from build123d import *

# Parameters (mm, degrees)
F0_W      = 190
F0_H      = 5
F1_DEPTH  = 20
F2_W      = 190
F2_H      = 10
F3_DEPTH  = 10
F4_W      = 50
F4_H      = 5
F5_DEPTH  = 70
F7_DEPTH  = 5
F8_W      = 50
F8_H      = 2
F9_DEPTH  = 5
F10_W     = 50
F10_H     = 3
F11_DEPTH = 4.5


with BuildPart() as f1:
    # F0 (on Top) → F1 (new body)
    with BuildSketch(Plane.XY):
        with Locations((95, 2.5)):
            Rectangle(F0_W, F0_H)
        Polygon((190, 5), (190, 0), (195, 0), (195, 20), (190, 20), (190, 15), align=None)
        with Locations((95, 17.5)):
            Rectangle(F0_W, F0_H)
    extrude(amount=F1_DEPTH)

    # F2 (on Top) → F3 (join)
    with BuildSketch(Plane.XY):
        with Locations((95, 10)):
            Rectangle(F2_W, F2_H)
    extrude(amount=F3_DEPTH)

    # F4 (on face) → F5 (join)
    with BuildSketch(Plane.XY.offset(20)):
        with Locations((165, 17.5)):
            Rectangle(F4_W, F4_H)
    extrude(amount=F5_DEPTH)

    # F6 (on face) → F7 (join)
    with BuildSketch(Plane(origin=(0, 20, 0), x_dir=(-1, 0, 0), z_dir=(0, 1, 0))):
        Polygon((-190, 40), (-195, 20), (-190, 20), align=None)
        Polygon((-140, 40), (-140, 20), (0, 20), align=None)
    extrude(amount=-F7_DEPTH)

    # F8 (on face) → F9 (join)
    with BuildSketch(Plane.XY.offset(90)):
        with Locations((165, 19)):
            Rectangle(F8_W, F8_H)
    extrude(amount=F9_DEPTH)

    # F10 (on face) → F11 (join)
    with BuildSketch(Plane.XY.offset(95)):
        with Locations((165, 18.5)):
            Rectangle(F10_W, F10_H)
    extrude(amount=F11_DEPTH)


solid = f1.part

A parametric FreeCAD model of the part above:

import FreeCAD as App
import Part
import Sketcher
from FreeCAD import Vector
Q = App.Units.Quantity


def add_polygon(sketch, points):
    """Adds a closed chain of lines whose ends are joined by coincident constraints."""
    first, n = sketch.GeometryCount, len(points)
    for a, b in zip(points, points[1:] + points[:1]):
        sketch.addGeometry(Part.LineSegment(App.Vector(*a, 0), App.Vector(*b, 0)), False)
    for i in range(n):
        sketch.addConstraint(Sketcher.Constraint("Coincident", first + i, 2, first + (i + 1) % n, 1))

doc = App.newDocument("Part")
body = doc.addObject("PartDesign::Body", "Body")

sketch1 = body.newObject("Sketcher::SketchObject", "Sketch")
sketch1.AttachmentSupport = (doc.getObject("XY_Plane"), [""])
sketch1.MapMode = "FlatFace"
add_polygon(sketch1, [(0, 5), (0, 0), (195, 0), (195, 20), (0, 20), (0, 15), (190, 15), (190, 5)])
sketch1.addConstraint([
    Sketcher.Constraint("Vertical", 0),
    Sketcher.Constraint("Horizontal", 1),
    Sketcher.Constraint("Vertical", 2),
    Sketcher.Constraint("Horizontal", 3),
    Sketcher.Constraint("Vertical", 4),
    Sketcher.Constraint("Horizontal", 5),
    Sketcher.Constraint("Vertical", 6),
    Sketcher.Constraint("Horizontal", 7),
    Sketcher.Constraint("Coincident", 0, 2, -1, 1),
    Sketcher.Constraint("PointOnObject", 3, 2, -2),
    Sketcher.Constraint("Equal", 0, 4),
    Sketcher.Constraint("DistanceX", 1, 1, 1, 2, Q("195 mm")),
    Sketcher.Constraint("DistanceX", 5, 1, 5, 2, Q("190 mm")),
    Sketcher.Constraint("DistanceY", 0, 2, 0, 1, Q("5 mm")),
    Sketcher.Constraint("DistanceY", 2, 1, 2, 2, Q("20 mm")),
])
pad1 = body.newObject("PartDesign::Pad", "Pad")
pad1.Profile = sketch1
pad1.Length = 20

sketch2 = body.newObject("Sketcher::SketchObject", "Sketch001")
sketch2.AttachmentSupport = (doc.getObject("XY_Plane"), [""])
sketch2.MapMode = "FlatFace"
add_polygon(sketch2, [(0, 15), (0, 5), (190, 5), (190, 15)])
sketch2.addConstraint([
    Sketcher.Constraint("Vertical", 0),
    Sketcher.Constraint("Horizontal", 1),
    Sketcher.Constraint("Vertical", 2),
    Sketcher.Constraint("Horizontal", 3),
    Sketcher.Constraint("PointOnObject", 0, 2, -2),
    Sketcher.Constraint("DistanceX", 1, 1, 1, 2, Q("190 mm")),
    Sketcher.Constraint("DistanceY", 0, 2, 0, 1, Q("10 mm")),
    Sketcher.Constraint("DistanceY", -1, 1, 0, 2, Q("5 mm")),
])
pad2 = body.newObject("PartDesign::Pad", "Pad001")
pad2.Profile = sketch2
pad2.Length = 10

sketch3 = body.newObject("Sketcher::SketchObject", "Sketch002")
sketch3.AttachmentSupport = (doc.getObject("XY_Plane"), [""])
sketch3.MapMode = "FlatFace"
sketch3.AttachmentOffset = App.Placement(Vector(0, 0, 20), App.Rotation())
add_polygon(sketch3, [(140, 20), (140, 15), (190, 15), (190, 20)])
sketch3.addConstraint([
    Sketcher.Constraint("Vertical", 0),
    Sketcher.Constraint("Horizontal", 1),
    Sketcher.Constraint("Vertical", 2),
    Sketcher.Constraint("Horizontal", 3),
    Sketcher.Constraint("DistanceX", 1, 1, 1, 2, Q("50 mm")),
    Sketcher.Constraint("DistanceY", 0, 2, 0, 1, Q("5 mm")),
    Sketcher.Constraint("DistanceX", -1, 1, 0, 2, Q("140 mm")),
    Sketcher.Constraint("DistanceY", -1, 1, 0, 2, Q("15 mm")),
])
pad3 = body.newObject("PartDesign::Pad", "Pad002")
pad3.Profile = sketch3
pad3.Length = 70

sketch4 = body.newObject("Sketcher::SketchObject", "Sketch003")
sketch4.AttachmentSupport = (doc.getObject("XZ_Plane"), [""])
sketch4.MapMode = "FlatFace"
sketch4.AttachmentOffset = App.Placement(Vector(0, 0, -20), App.Rotation())
add_polygon(sketch4, [(190, 40), (195, 20), (190, 20)])
add_polygon(sketch4, [(140, 40), (140, 20), (0, 20)])
sketch4.addConstraint([
    Sketcher.Constraint("Horizontal", 1),
    Sketcher.Constraint("Vertical", 2),
    Sketcher.Constraint("Vertical", 3),
    Sketcher.Constraint("Horizontal", 4),
    Sketcher.Constraint("PointOnObject", 4, 2, -2),
    Sketcher.Constraint("Horizontal", 1, 2, 3, 2),
    Sketcher.Constraint("Horizontal", 2, 2, 5, 2),
    Sketcher.Constraint("DistanceX", 1, 2, 1, 1, Q("5 mm")),
    Sketcher.Constraint("DistanceX", 4, 2, 4, 1, Q("140 mm")),
    Sketcher.Constraint("DistanceY", 2, 1, 2, 2, Q("20 mm")),
    Sketcher.Constraint("DistanceX", -1, 1, 0, 2, Q("195 mm")),
    Sketcher.Constraint("DistanceY", -1, 1, 0, 2, Q("20 mm")),
])
pad4 = body.newObject("PartDesign::Pad", "Pad003")
pad4.Profile = sketch4
pad4.Length = 5

sketch5 = body.newObject("Sketcher::SketchObject", "Sketch004")
sketch5.AttachmentSupport = (doc.getObject("XY_Plane"), [""])
sketch5.MapMode = "FlatFace"
sketch5.AttachmentOffset = App.Placement(Vector(0, 0, 90), App.Rotation())
add_polygon(sketch5, [(140, 20), (140, 18), (190, 18), (190, 20)])
sketch5.addConstraint([
    Sketcher.Constraint("Vertical", 0),
    Sketcher.Constraint("Horizontal", 1),
    Sketcher.Constraint("Vertical", 2),
    Sketcher.Constraint("Horizontal", 3),
    Sketcher.Constraint("DistanceX", 1, 1, 1, 2, Q("50 mm")),
    Sketcher.Constraint("DistanceY", 0, 2, 0, 1, Q("2 mm")),
    Sketcher.Constraint("DistanceX", -1, 1, 0, 2, Q("140 mm")),
    Sketcher.Constraint("DistanceY", -1, 1, 0, 2, Q("18 mm")),
])
pad5 = body.newObject("PartDesign::Pad", "Pad004")
pad5.Profile = sketch5
pad5.Length = 5

sketch6 = body.newObject("Sketcher::SketchObject", "Sketch005")
sketch6.AttachmentSupport = (doc.getObject("XY_Plane"), [""])
sketch6.MapMode = "FlatFace"
sketch6.AttachmentOffset = App.Placement(Vector(0, 0, 95), App.Rotation())
add_polygon(sketch6, [(140, 20), (140, 17), (190, 17), (190, 20)])
sketch6.addConstraint([
    Sketcher.Constraint("Vertical", 0),
    Sketcher.Constraint("Horizontal", 1),
    Sketcher.Constraint("Vertical", 2),
    Sketcher.Constraint("Horizontal", 3),
    Sketcher.Constraint("DistanceX", 1, 1, 1, 2, Q("50 mm")),
    Sketcher.Constraint("DistanceY", 0, 2, 0, 1, Q("3 mm")),
    Sketcher.Constraint("DistanceX", -1, 1, 0, 2, Q("140 mm")),
    Sketcher.Constraint("DistanceY", -1, 1, 0, 2, Q("17 mm")),
])
pad6 = body.newObject("PartDesign::Pad", "Pad005")
pad6.Profile = sketch6
pad6.Length = 4.5

doc.recompute()
